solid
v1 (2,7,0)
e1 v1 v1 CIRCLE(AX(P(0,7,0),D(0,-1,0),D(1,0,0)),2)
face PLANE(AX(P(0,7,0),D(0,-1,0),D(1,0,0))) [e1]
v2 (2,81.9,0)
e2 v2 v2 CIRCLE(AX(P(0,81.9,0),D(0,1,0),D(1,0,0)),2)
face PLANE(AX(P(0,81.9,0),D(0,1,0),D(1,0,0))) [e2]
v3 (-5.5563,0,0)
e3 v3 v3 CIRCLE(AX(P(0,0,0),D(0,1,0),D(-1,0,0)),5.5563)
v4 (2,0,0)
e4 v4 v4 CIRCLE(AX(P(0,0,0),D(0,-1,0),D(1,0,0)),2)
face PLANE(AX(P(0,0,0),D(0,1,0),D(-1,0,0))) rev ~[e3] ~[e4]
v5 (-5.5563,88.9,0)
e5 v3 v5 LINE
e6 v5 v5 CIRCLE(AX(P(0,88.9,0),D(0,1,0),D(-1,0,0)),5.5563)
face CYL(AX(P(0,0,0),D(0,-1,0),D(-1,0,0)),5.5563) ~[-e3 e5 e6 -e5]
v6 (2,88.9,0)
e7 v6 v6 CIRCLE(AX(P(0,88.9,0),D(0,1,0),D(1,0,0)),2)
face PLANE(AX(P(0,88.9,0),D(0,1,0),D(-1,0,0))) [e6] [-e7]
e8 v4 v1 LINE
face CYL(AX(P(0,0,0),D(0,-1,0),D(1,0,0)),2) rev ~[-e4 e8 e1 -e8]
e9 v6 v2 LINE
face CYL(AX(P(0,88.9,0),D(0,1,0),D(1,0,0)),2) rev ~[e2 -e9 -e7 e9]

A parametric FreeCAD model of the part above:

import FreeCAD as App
import Part
import Sketcher
from FreeCAD import Vector
Q = App.Units.Quantity

doc = App.newDocument("Part")
params = doc.addObject("Spreadsheet::Sheet", "Params")
for row, (alias, value) in enumerate([
    ("sketch1_diameter", "0.4375 in"),
    ("pad1_length", "3.5 in"),
    ("pocket1_length", "0.2755906 in"),
    ("pocket2_length", "0.2755906 in"),
], start=1):
    params.set(f"A{row}", alias)
    params.set(f"B{row}", "=" + value)
    params.setAlias(f"B{row}", alias)

body = doc.addObject("PartDesign::Body", "Body")

# Sketch on XZ plane
sketch1 = body.newObject("Sketcher::SketchObject", "Sketch")
sketch1.AttachmentSupport = (doc.getObject("XZ_Plane"), [""])
sketch1.MapMode = "FlatFace"
sketch1.addGeometry(Part.Circle(Vector(0, 0, 0), Vector(0, 0, 1), 6), False)
sketch1.addConstraint([
    Sketcher.Constraint("Coincident", 0, 3, -1, 1),
    Sketcher.Constraint("Diameter", 0, Q("0.4375 in")),
])
sketch1.setExpression("Constraints[1]", "Params.sketch1_diameter")
pad1 = body.newObject("PartDesign::Pad", "Pad")
pad1.Profile = sketch1
pad1.setExpression("Length", "Params.pad1_length")
pad1.Reversed = True

# Sketch on XZ plane
sketch2 = body.newObject("Sketcher::SketchObject", "Sketch001")
sketch2.AttachmentSupport = (doc.getObject("XZ_Plane"), [""])
sketch2.MapMode = "FlatFace"
sketch2.AttachmentOffset = App.Placement(Vector(0, 0, -3.5 * 25.4), App.Rotation())
sketch2.addGeometry(Part.Circle(Vector(0, 0, 0), Vector(0, 0, 1), 2), False)
sketch2.addConstraint([
    Sketcher.Constraint("Coincident", 0, 3, -1, 1),
    Sketcher.Constraint("Diameter", 0, 4.0),
])
pocket1 = body.newObject("PartDesign::Pocket", "Pocket")
pocket1.Profile = sketch2
pocket1.setExpression("Length", "Params.pocket1_length")
pocket1.Reversed = True

# Sketch on XZ plane
sketch3 = body.newObject("Sketcher::SketchObject", "Sketch002")
sketch3.AttachmentSupport = (doc.getObject("XZ_Plane"), [""])
sketch3.MapMode = "FlatFace"
sketch3.addGeometry(Part.Circle(Vector(0, 0, 0), Vector(0, 0, 1), 2), False)
sketch3.addConstraint([
    Sketcher.Constraint("Coincident", 0, 3, -1, 1),
    Sketcher.Constraint("Diameter", 0, 4.0),
])
pocket2 = body.newObject("PartDesign::Pocket", "Pocket001")
pocket2.Profile = sketch3
pocket2.setExpression("Length", "Params.pocket2_length")

doc.recompute()
